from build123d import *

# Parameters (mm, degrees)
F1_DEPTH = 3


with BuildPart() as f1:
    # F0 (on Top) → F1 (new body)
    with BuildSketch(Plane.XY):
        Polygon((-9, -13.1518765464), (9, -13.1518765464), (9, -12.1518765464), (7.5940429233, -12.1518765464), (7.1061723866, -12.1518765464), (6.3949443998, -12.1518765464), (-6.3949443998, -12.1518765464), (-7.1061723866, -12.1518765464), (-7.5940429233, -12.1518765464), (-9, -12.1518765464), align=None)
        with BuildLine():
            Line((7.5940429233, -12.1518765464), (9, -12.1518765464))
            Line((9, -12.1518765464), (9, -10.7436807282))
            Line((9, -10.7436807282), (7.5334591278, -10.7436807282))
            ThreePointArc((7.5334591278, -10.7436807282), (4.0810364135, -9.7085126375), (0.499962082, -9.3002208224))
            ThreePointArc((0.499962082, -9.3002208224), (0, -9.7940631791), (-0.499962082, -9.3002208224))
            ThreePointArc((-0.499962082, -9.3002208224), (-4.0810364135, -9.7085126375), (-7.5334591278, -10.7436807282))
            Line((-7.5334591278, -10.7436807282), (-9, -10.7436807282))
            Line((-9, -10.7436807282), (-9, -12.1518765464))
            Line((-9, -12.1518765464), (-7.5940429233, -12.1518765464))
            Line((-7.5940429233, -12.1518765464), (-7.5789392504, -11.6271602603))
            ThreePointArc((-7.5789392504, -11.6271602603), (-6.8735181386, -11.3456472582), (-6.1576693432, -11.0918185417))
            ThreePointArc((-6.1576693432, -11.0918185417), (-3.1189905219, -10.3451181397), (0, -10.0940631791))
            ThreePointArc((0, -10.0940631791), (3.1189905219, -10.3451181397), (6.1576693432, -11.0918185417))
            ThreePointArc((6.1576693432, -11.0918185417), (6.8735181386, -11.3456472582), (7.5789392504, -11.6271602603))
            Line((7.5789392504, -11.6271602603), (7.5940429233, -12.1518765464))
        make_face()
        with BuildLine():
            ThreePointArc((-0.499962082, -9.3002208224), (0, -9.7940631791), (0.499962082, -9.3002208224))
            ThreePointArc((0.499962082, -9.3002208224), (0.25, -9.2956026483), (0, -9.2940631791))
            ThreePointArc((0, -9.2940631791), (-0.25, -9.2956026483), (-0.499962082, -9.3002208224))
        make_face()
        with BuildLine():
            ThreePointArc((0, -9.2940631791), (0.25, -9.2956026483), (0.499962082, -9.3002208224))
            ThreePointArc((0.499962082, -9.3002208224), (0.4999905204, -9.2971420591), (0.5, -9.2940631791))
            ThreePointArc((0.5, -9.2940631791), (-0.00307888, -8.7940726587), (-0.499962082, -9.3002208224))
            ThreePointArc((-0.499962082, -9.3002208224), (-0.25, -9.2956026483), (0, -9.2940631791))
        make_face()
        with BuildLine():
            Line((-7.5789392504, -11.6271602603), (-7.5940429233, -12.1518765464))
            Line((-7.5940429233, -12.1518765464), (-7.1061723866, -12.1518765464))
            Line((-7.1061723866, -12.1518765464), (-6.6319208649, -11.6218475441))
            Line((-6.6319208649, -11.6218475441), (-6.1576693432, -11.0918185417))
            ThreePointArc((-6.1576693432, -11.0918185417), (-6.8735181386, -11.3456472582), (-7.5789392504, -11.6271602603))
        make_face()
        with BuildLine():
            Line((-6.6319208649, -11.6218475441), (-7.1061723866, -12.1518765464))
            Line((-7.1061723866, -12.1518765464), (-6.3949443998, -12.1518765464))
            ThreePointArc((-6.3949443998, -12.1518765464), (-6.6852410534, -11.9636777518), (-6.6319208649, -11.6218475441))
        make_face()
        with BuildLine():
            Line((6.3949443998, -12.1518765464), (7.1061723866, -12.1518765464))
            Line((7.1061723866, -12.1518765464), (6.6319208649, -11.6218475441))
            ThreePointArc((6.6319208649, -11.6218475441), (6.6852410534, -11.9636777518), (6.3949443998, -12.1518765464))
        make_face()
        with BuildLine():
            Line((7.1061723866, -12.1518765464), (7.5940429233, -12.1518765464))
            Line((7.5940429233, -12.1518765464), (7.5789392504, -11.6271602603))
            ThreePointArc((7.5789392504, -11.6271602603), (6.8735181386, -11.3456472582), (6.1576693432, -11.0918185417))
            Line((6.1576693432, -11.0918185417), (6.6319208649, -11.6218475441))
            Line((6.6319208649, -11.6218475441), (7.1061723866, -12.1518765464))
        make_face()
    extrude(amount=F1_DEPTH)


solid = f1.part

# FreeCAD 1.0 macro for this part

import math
import FreeCAD as App
import Part
import Sketcher

V = App.Vector

doc = App.newDocument("Part")
body = doc.addObject("PartDesign::Body", "Body")

# Sketch on XY plane
sketch1 = doc.addObject("Sketcher::SketchObject", "Sketch")
body.addObject(sketch1)
sketch1.AttachmentSupport = (doc.XY_Plane, [""])
sketch1.MapMode = "FlatFace"
sketch1.addGeometry([
    Part.LineSegment(V(-9, -13.152, 0), V(9, -13.152, 0)),  # 0
    Part.LineSegment(V(9, -13.152, 0), V(9, -10.744, 0)),  # 1
    Part.LineSegment(V(9, -10.744, 0), V(7.533, -10.744, 0)),  # 2
    Part.ArcOfCircle(Part.Circle(V(0, -29.594, 0), V(0, 0, 1), 20.3), math.radians(68), math.radians(89)),  # 3
    Part.ArcOfCircle(Part.Circle(V(0, -9.294, 0), V(0, 0, 1), 0.5), math.radians(-0.71), math.radians(0)),  # 4
    Part.ArcOfCircle(Part.Circle(V(0, -9.294, 0), V(0, 0, 1), 0.5), math.radians(0), math.radians(181)),  # 5
    Part.ArcOfCircle(Part.Circle(V(0, -29.594, 0), V(0, 0, 1), 20.3), math.radians(91), math.radians(112)),  # 6
    Part.LineSegment(V(-7.533, -10.744, 0), V(-9, -10.744, 0)),  # 7
    Part.LineSegment(V(-9, -10.744, 0), V(-9, -13.152, 0)),  # 8
    Part.ArcOfCircle(Part.Circle(V(6.395, -11.834, 0), V(0, 0, 1), 0.318), math.radians(-90), math.radians(42)),  # 9
    Part.LineSegment(V(6.395, -12.152, 0), V(-6.395, -12.152, 0)),  # 10
    Part.ArcOfCircle(Part.Circle(V(-6.395, -11.834, 0), V(0, 0, 1), 0.318), math.radians(138), math.radians(270)),  # 11
    Part.LineSegment(V(-6.632, -11.622, 0), V(-6.158, -11.092, 0)),  # 12
    Part.ArcOfCircle(Part.Circle(V(0, -29.594, 0), V(0, 0, 1), 19.5), math.radians(90), math.radians(108.41)),  # 13
    Part.ArcOfCircle(Part.Circle(V(0, -29.594, 0), V(0, 0, 1), 19.5), math.radians(71.59), math.radians(90)),  # 14
    Part.LineSegment(V(6.158, -11.092, 0), V(6.632, -11.622, 0)),  # 15
], False)
sketch1.addConstraint([
    Sketcher.Constraint("Coincident", 0, 2, 1, 1),
    Sketcher.Constraint("Coincident", 1, 2, 2, 1),
    Sketcher.Constraint("Coincident", 2, 2, 3, 1),
    Sketcher.Constraint("Coincident", 3, 2, 4, 1),
    Sketcher.Constraint("Tangent", 4, 2, 5, 1),
    Sketcher.Constraint("Coincident", 5, 2, 6, 1),
    Sketcher.Constraint("Coincident", 6, 2, 7, 1),
    Sketcher.Constraint("Coincident", 7, 2, 8, 1),
    Sketcher.Constraint("Coincident", 8, 2, 0, 1),
    Sketcher.Constraint("Tangent", 9, 1, 10, 1),
    Sketcher.Constraint("Tangent", 10, 2, 11, 2),
    Sketcher.Constraint("Tangent", 11, 1, 12, 1),
    Sketcher.Constraint("Coincident", 12, 2, 13, 2),
    Sketcher.Constraint("Tangent", 13, 1, 14, 2),
    Sketcher.Constraint("Coincident", 14, 1, 15, 1),
    Sketcher.Constraint("Tangent", 15, 2, 9, 2),
    Sketcher.Constraint("Horizontal", 0),
    Sketcher.Constraint("Vertical", 1),
    Sketcher.Constraint("Horizontal", 2),
    Sketcher.Constraint("Horizontal", 7),
    Sketcher.Constraint("Vertical", 8),
    Sketcher.Constraint("Horizontal", 10),
    Sketcher.Constraint("Coincident", 6, 3, 3, 3),
    Sketcher.Constraint("Coincident", 13, 3, 3, 3),
    Sketcher.Constraint("Equal", 4, 5),
    Sketcher.Constraint("Equal", 3, 6),
    Sketcher.Constraint("Equal", 9, 11),
    Sketcher.Constraint("Equal", 13, 14),
    Sketcher.Constraint("Symmetric", 3, 2, 5, 2, -2),
    Sketcher.Constraint("Symmetric", 1, 2, 7, 2, -2),
    Sketcher.Constraint("Symmetric", 11, 1, 15, 2, -2),
    Sketcher.Constraint("PointOnObject", 13, 1, -2),
    Sketcher.Constraint("Horizontal", 5, 3, 4, 2),
    Sketcher.Constraint("Radius", 4, 0.500001),
    Sketcher.Constraint("DistanceX", 0, 1, 0, 2, 18.0),
    Sketcher.Constraint("DistanceY", 0, 2, 9, 1, 1.0),
    Sketcher.Constraint("DistanceY", 13, 1, 5, 3, 0.8),
    Sketcher.Constraint("Radius", 9, 0.317991),
    Sketcher.Constraint("Radius", 3, 20.299974),
    Sketcher.Constraint("Radius", 13, 19.499974),
    Sketcher.Constraint("DistanceX", 2, 2, 2, 1, 1.466541),
    Sketcher.Constraint("DistanceX", 10, 2, 10, 1, 12.789889),
    Sketcher.Constraint("DistanceY", 1, 1, 1, 2, 2.408196),
    Sketcher.Constraint("DistanceY", 1, 2, -1, 1, 10.743681),
    Sketcher.Constraint("DistanceX", 11, 1, -1, 1, 6.631921),
])
pad1 = doc.addObject("PartDesign::Pad", "Pad")
body.addObject(pad1)
pad1.Profile = sketch1
pad1.Length = 3

doc.recompute()
